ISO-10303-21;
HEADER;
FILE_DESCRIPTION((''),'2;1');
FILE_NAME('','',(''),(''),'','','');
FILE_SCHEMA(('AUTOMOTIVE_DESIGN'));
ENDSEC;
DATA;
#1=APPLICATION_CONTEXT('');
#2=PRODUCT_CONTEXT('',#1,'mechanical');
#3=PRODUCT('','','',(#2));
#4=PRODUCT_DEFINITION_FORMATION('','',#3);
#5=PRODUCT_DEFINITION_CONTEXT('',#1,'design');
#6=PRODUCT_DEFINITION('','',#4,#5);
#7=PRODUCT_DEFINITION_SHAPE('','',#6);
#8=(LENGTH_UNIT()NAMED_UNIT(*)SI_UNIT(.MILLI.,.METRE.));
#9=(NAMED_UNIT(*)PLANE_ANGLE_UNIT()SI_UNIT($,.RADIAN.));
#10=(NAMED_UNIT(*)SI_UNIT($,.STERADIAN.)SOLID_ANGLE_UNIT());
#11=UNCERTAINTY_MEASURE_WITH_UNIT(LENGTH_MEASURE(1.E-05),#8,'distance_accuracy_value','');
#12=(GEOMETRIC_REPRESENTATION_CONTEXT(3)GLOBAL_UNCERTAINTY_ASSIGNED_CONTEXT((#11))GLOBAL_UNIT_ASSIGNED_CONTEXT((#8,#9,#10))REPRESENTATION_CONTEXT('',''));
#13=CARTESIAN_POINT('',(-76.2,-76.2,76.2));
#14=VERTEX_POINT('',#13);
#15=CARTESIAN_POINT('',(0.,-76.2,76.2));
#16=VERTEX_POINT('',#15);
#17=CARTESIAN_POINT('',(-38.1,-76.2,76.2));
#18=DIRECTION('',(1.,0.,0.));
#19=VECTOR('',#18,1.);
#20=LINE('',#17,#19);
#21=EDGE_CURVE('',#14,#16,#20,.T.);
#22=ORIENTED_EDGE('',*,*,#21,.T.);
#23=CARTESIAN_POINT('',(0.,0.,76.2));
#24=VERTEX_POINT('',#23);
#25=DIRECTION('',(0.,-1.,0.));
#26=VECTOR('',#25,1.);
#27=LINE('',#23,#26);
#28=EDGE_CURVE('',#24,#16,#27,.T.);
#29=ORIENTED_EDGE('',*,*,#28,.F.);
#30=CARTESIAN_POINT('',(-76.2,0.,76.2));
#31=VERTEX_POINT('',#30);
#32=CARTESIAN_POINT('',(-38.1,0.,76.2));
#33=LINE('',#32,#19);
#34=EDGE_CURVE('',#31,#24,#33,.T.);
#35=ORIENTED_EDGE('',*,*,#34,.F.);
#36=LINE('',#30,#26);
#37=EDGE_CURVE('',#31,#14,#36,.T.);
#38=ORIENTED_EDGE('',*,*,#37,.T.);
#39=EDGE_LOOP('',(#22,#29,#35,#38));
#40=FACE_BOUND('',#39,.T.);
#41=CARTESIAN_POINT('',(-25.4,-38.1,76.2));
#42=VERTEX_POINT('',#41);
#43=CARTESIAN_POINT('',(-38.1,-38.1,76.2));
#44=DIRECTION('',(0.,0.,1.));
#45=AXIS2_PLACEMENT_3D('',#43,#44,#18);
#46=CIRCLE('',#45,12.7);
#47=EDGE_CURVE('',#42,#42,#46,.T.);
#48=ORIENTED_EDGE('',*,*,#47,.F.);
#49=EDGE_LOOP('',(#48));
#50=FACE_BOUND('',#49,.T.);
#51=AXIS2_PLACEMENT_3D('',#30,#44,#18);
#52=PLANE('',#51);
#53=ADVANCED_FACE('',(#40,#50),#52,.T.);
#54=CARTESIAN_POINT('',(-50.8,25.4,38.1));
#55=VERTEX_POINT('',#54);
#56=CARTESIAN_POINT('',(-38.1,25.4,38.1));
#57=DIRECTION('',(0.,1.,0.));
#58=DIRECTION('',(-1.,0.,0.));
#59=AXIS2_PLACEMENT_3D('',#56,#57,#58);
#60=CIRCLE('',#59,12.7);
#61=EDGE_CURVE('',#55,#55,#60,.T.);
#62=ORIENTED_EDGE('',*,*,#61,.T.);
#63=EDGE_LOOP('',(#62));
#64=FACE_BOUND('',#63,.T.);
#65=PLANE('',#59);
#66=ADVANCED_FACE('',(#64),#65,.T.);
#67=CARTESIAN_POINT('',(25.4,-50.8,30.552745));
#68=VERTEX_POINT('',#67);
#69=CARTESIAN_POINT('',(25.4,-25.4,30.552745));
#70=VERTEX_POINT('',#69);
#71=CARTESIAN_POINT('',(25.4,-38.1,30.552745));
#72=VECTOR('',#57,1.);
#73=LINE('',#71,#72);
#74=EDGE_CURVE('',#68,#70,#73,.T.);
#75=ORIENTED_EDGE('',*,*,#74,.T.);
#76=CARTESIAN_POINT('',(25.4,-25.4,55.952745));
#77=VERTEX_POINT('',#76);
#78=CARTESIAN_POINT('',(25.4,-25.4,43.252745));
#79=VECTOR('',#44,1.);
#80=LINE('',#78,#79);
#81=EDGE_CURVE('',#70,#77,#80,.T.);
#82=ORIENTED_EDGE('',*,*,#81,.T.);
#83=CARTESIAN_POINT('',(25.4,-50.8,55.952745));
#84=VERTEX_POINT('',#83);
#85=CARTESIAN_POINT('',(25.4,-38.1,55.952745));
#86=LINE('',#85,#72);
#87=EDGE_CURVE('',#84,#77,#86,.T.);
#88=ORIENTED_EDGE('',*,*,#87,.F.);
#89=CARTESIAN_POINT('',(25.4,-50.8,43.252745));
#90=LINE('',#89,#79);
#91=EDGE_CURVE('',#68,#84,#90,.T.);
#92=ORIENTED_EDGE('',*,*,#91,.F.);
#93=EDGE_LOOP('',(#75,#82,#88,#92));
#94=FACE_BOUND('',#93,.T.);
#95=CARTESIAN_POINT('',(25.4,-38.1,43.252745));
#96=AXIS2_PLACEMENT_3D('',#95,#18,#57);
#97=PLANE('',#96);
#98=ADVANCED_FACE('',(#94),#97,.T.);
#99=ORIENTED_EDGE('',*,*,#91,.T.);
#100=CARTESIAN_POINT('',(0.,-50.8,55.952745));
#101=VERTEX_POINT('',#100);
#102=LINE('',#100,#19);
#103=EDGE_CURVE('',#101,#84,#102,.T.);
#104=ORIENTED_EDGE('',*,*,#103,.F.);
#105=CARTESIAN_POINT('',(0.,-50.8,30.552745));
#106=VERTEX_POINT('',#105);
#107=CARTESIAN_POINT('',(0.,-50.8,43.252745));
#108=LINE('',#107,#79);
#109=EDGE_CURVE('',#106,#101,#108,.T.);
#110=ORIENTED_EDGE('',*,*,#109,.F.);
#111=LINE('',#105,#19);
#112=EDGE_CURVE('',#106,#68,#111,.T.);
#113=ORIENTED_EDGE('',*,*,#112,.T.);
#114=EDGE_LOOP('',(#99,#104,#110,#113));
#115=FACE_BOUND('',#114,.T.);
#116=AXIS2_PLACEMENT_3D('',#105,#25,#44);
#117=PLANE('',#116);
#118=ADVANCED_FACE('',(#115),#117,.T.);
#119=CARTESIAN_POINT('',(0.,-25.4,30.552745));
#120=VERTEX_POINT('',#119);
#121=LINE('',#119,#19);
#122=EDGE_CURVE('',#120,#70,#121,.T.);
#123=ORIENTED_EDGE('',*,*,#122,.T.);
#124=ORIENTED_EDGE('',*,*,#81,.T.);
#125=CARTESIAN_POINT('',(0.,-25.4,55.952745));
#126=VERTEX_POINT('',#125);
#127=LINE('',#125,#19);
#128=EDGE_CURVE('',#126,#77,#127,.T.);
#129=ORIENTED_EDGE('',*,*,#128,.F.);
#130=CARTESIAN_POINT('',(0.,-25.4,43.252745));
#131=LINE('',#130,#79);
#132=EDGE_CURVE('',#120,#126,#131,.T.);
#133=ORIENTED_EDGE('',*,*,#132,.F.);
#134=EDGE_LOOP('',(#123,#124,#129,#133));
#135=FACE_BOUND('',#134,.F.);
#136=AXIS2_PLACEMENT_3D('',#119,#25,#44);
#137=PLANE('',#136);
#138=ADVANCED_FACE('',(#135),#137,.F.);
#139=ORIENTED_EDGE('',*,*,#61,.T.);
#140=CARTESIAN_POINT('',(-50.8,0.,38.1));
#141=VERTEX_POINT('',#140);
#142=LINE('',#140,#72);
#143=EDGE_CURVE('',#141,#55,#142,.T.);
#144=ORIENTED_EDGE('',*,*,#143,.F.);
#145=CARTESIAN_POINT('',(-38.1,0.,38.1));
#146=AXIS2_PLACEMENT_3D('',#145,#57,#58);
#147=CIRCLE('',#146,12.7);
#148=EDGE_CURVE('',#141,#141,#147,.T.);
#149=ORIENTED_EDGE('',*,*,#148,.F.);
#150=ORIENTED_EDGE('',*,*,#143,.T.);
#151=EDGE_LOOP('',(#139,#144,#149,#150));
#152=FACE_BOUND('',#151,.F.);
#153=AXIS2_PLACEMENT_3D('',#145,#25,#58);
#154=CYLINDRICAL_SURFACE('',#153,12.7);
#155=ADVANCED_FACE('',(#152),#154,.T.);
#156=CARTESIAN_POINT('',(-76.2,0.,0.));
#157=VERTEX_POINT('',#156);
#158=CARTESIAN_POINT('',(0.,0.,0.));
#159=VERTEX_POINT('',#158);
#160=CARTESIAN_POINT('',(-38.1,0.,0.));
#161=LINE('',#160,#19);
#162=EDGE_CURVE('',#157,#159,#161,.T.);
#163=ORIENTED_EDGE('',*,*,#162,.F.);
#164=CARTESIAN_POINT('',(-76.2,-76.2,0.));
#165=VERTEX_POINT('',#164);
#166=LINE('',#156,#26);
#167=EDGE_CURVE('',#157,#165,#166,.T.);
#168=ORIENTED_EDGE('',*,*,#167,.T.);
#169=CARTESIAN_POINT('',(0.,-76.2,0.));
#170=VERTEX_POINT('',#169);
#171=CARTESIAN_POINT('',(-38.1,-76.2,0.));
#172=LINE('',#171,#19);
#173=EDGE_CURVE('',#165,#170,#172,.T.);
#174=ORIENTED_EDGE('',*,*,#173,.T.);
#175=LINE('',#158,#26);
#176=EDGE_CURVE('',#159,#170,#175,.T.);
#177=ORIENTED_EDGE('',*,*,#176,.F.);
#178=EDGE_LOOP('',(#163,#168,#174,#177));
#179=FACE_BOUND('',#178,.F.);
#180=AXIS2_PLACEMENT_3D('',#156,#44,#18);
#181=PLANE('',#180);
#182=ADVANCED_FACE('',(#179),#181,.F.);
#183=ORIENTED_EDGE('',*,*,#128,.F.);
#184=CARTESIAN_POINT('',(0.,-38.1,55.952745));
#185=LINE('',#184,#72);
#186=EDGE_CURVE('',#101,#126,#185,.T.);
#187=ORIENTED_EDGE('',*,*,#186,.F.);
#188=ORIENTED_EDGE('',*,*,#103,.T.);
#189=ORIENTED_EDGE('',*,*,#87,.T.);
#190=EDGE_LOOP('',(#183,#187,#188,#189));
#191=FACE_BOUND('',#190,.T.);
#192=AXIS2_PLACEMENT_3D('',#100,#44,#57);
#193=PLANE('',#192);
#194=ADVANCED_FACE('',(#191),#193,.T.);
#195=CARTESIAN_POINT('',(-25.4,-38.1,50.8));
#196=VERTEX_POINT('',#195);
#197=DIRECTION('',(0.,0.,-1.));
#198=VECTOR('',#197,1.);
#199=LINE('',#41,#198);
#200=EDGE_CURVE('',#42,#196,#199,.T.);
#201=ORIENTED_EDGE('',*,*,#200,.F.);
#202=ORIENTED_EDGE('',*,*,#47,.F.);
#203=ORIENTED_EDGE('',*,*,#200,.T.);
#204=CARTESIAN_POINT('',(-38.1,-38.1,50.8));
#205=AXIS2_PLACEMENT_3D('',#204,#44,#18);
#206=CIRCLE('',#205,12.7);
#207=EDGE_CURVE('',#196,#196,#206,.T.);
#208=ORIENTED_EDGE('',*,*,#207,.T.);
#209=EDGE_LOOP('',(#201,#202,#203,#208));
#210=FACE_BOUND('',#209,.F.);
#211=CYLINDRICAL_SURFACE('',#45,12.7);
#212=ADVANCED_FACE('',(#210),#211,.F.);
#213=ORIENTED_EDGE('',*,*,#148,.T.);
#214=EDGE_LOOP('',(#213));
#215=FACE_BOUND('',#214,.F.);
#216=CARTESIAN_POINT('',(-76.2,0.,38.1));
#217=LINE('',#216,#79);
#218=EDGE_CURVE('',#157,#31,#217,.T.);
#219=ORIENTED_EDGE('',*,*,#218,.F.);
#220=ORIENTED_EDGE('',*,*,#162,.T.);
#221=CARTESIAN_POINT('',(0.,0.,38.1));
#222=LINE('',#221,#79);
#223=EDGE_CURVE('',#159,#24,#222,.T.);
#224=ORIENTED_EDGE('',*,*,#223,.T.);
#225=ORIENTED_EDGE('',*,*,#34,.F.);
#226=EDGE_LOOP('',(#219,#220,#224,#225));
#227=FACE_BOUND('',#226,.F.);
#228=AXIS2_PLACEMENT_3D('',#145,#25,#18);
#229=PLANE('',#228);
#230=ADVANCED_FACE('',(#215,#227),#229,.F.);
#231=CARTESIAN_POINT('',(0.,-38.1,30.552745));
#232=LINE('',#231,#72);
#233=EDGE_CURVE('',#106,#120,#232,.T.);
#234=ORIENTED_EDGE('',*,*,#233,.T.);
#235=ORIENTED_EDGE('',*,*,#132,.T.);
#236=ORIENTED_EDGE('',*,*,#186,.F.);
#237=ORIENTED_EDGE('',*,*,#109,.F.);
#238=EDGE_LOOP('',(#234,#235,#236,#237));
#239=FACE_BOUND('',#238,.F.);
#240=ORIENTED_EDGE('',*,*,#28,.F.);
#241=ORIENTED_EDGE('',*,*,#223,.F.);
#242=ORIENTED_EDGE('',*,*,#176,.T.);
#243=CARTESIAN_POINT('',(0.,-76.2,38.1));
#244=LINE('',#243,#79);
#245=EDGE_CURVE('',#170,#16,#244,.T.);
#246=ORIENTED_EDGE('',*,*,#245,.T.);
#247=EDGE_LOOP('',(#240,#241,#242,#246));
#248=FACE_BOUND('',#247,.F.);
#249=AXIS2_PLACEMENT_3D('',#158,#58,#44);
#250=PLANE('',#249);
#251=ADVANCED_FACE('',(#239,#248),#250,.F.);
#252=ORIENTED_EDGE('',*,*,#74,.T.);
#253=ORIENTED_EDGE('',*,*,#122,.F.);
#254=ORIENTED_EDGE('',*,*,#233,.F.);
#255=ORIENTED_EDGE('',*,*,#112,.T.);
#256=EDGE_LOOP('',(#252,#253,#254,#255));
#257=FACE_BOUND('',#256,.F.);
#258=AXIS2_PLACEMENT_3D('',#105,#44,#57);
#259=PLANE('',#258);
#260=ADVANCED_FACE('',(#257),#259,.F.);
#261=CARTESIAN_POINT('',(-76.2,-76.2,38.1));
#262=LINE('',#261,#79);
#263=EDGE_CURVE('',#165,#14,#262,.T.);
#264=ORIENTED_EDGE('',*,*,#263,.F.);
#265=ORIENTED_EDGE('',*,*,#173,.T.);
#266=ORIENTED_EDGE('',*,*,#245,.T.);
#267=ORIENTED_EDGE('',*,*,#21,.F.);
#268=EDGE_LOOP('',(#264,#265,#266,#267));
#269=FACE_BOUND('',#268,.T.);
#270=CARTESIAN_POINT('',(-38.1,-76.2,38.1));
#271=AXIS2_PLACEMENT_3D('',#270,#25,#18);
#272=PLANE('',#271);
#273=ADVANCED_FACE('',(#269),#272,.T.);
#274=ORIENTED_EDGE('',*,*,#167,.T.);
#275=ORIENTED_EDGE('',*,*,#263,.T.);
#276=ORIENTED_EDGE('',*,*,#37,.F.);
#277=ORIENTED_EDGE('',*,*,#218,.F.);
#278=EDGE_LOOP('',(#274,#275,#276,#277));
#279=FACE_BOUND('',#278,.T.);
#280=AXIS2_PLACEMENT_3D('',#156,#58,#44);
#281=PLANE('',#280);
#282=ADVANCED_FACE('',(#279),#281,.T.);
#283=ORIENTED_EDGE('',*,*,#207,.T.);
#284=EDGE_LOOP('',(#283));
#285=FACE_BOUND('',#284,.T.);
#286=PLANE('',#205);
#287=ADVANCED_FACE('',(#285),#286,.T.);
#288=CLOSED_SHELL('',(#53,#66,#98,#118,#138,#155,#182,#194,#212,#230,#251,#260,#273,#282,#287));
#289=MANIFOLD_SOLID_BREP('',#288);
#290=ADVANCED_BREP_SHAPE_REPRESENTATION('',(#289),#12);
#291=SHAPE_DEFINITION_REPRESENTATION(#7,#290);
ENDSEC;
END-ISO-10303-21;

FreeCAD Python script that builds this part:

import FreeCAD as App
import Part
import Sketcher
Q = App.Units.Quantity


def add_polygon(sketch, points):
    """Adds a closed chain of lines whose ends are joined by coincident constraints."""
    first, n = sketch.GeometryCount, len(points)
    for a, b in zip(points, points[1:] + points[:1]):
        sketch.addGeometry(Part.LineSegment(App.Vector(*a, 0), App.Vector(*b, 0)), False)
    for i in range(n):
        sketch.addConstraint(Sketcher.Constraint("Coincident", first + i, 2, first + (i + 1) % n, 1))

doc = App.newDocument("Part")
body = doc.addObject("PartDesign::Body", "Body")

# Sketch on XZ plane
sketch1 = doc.addObject("Sketcher::SketchObject", "Sketch")
body.addObject(sketch1)
sketch1.AttachmentSupport = (doc.XZ_Plane, [""])
sketch1.MapMode = "FlatFace"
add_polygon(sketch1, [(-76.2, 76.2), (-76.2, 0), (0, 0), (0, 76.2)])  # lines 0-3
sketch1.addConstraint([
    Sketcher.Constraint("Vertical", 0),
    Sketcher.Constraint("Horizontal", 1),
    Sketcher.Constraint("Vertical", 2),
    Sketcher.Constraint("Horizontal", 3),
    Sketcher.Constraint("Coincident", 1, 2, -1, 1),
    Sketcher.Constraint("Equal", 3, 0),
    Sketcher.Constraint("DistanceX", 1, 1, 1, 2, Q("3 in")),
])
pad1 = doc.addObject("PartDesign::Pad", "Pad")
body.addObject(pad1)
pad1.Profile = sketch1
pad1.Length = Q("3 in")

# Sketch on XY plane
sketch2 = doc.addObject("Sketcher::SketchObject", "Sketch001")
body.addObject(sketch2)
sketch2.AttachmentSupport = (doc.XY_Plane, [""])
sketch2.MapMode = "FlatFace"
sketch2.AttachmentOffset = App.Placement(App.Vector(0, 0, 3 * 25.4), App.Rotation())
sketch2.addGeometry(Part.Circle(App.Vector(-38.1, -38.1, 0), App.Vector(0, 0, 1), 12.7), False)
sketch2.addConstraint([
    Sketcher.Constraint("Diameter", 0, Q("1 in")),
    Sketcher.Constraint("DistanceX", 0, 3, -1, 1, Q("1.5 in")),
    Sketcher.Constraint("DistanceY", 0, 3, -1, 1, Q("1.5 in")),
])
pocket1 = doc.addObject("PartDesign::Pocket", "Pocket")
body.addObject(pocket1)
pocket1.Profile = sketch2
pocket1.Length = Q("1 in")

# Sketch on YZ plane
sketch3 = doc.addObject("Sketcher::SketchObject", "Sketch002")
body.addObject(sketch3)
sketch3.AttachmentSupport = (doc.YZ_Plane, [""])
sketch3.MapMode = "FlatFace"
add_polygon(sketch3, [(-50.8, 55.952745), (-50.8, 30.552745), (-25.4, 30.552745), (-25.4, 55.952745)])  # lines 0-3
sketch3.addConstraint([
    Sketcher.Constraint("Vertical", 0),
    Sketcher.Constraint("Horizontal", 1),
    Sketcher.Constraint("Vertical", 2),
    Sketcher.Constraint("Horizontal", 3),
    Sketcher.Constraint("Equal", 3, 0),
    Sketcher.Constraint("DistanceX", 1, 1, 1, 2, Q("1 in")),
    Sketcher.Constraint("DistanceX", 0, 2, -1, 1, Q("2 in")),
    Sketcher.Constraint("DistanceY", -1, 1, 0, 2, 30.552745),
])
pad2 = doc.addObject("PartDesign::Pad", "Pad001")
body.addObject(pad2)
pad2.Profile = sketch3
pad2.Length = Q("1 in")

# Sketch on XZ plane
sketch4 = doc.addObject("Sketcher::SketchObject", "Sketch003")
body.addObject(sketch4)
sketch4.AttachmentSupport = (doc.XZ_Plane, [""])
sketch4.MapMode = "FlatFace"
sketch4.addGeometry(Part.Circle(App.Vector(-38.1, 38.1, 0), App.Vector(0, 0, 1), 12.7), False)
sketch4.addConstraint([
    Sketcher.Constraint("Diameter", 0, Q("1 in")),
    Sketcher.Constraint("DistanceX", 0, 3, -1, 1, Q("1.5 in")),
    Sketcher.Constraint("DistanceY", -1, 1, 0, 3, Q("1.5 in")),
])
pad3 = doc.addObject("PartDesign::Pad", "Pad002")
body.addObject(pad3)
pad3.Profile = sketch4
pad3.Length = Q("1 in")
pad3.Reversed = True

doc.recompute()
